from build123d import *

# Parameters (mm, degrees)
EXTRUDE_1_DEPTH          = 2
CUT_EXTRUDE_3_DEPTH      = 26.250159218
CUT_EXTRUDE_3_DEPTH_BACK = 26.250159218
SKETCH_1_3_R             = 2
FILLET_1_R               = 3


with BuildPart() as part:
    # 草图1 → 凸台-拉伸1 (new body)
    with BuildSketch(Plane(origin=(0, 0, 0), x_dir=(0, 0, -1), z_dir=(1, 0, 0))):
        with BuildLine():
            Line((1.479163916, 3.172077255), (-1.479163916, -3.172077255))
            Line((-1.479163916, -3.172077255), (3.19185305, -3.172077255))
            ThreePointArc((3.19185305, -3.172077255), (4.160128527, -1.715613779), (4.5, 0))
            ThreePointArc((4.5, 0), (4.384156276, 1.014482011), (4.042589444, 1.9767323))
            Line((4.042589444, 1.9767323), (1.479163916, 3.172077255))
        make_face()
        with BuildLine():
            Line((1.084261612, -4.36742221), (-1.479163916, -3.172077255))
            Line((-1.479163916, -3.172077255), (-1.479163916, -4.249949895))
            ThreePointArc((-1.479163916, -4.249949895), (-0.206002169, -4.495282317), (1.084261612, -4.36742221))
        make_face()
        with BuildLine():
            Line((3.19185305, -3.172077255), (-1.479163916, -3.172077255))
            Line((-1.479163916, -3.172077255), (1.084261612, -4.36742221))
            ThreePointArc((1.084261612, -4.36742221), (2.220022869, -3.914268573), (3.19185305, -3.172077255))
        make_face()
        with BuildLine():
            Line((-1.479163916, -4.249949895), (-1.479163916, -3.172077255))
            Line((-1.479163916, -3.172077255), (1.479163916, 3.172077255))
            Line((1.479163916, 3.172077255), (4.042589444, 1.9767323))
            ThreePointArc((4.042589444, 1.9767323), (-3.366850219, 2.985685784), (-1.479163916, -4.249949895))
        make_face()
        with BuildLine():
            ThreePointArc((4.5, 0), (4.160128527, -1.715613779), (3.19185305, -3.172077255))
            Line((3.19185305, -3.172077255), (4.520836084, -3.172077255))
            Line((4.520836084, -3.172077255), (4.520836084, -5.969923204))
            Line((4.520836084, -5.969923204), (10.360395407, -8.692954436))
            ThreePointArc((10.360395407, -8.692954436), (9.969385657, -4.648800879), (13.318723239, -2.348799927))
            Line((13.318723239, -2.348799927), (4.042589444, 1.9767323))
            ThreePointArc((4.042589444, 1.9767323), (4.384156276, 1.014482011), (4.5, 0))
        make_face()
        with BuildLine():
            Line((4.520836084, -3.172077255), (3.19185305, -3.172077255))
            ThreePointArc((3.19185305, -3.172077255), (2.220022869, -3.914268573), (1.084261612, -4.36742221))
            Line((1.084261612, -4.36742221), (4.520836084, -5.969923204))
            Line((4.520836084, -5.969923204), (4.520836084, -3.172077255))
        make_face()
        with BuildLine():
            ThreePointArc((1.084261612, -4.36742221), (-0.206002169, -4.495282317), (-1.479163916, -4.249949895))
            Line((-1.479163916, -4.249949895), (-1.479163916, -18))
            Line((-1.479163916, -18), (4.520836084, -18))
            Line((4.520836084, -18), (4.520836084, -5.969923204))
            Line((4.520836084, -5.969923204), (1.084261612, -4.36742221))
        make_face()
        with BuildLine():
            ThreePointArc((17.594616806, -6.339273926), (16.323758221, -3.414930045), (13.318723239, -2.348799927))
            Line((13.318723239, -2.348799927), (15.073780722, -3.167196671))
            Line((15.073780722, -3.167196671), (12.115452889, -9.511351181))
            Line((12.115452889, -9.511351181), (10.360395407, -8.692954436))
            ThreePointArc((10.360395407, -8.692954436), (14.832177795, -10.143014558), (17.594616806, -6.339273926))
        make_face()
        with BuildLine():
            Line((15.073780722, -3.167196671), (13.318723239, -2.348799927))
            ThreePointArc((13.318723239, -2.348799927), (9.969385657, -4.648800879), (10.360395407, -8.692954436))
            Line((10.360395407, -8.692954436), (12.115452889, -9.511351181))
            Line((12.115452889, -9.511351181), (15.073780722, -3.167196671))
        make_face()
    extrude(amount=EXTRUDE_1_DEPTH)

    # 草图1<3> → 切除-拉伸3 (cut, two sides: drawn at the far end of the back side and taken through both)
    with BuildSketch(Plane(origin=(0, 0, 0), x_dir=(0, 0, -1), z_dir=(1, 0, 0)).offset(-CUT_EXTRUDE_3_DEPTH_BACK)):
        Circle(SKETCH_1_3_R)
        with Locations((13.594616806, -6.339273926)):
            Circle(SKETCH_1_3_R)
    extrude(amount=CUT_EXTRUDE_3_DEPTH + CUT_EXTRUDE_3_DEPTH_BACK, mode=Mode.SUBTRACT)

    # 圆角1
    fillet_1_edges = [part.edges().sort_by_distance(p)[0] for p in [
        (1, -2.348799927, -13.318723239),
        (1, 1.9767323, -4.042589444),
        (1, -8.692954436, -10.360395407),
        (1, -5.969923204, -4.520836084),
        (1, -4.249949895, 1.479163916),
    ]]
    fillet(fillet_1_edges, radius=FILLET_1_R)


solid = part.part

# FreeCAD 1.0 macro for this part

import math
import FreeCAD as App
import Part
import Sketcher
Q = App.Units.Quantity


def edges_at(feature, points):
    """Names of the edges that pass closest to the given points."""
    edges = feature.Shape.Edges
    near = lambda p: min(range(len(edges)), key=lambda i: edges[i].distToShape(Part.Vertex(*p))[0])
    return sorted({f"Edge{near(p) + 1}" for p in points})

doc = App.newDocument("Part")
body = doc.addObject("PartDesign::Body", "Body")

sketch1 = body.newObject("Sketcher::SketchObject", "Sketch")
sketch1.AttachmentSupport = (doc.getObject("YZ_Plane"), [""])
sketch1.MapMode = "FlatFace"
sketch1.addGeometry([
    Part.LineSegment(App.Vector(-5.969923, -4.520836, 0), App.Vector(-8.692954, -10.360395, 0)),
    Part.ArcOfCircle(Part.Circle(App.Vector(-6.339274, -13.594617, 0), App.Vector(0, 0, 1), 4), math.radians(126.044976), math.radians(270)),
    Part.ArcOfCircle(Part.Circle(App.Vector(-6.339274, -13.594617, 0), App.Vector(0, 0, 1), 4), math.radians(-90), math.radians(3.955024)),
    Part.LineSegment(App.Vector(-2.3488, -13.318723, 0), App.Vector(1.976732, -4.042589, 0)),
    Part.ArcOfCircle(Part.Circle(App.Vector(0, 0, 0), App.Vector(0, 0, 1), 4.5), math.radians(-63.942441), math.radians(160.809923)),
    Part.LineSegment(App.Vector(-4.24995, 1.479164, 0), App.Vector(-18, 1.479164, 0)),
    Part.LineSegment(App.Vector(-18, 1.479164, 0), App.Vector(-18, -4.520836, 0)),
    Part.LineSegment(App.Vector(-18, -4.520836, 0), App.Vector(-5.969923, -4.520836, 0)),
], False)
sketch1.addConstraint([
    Sketcher.Constraint("Coincident", 0, 2, 1, 1),
    Sketcher.Constraint("Tangent", 1, 2, 2, 1),
    Sketcher.Constraint("Coincident", 2, 2, 3, 1),
    Sketcher.Constraint("Coincident", 3, 2, 4, 1),
    Sketcher.Constraint("Coincident", 4, 2, 5, 1),
    Sketcher.Constraint("Coincident", 5, 2, 6, 1),
    Sketcher.Constraint("Coincident", 6, 2, 7, 1),
    Sketcher.Constraint("Coincident", 7, 2, 0, 1),
    Sketcher.Constraint("Horizontal", 5),
    Sketcher.Constraint("Vertical", 6),
    Sketcher.Constraint("Horizontal", 7),
    Sketcher.Constraint("Coincident", 4, 3, -1, 1),
    Sketcher.Constraint("Equal", 1, 2),
    Sketcher.Constraint("Parallel", 0, 3),
    Sketcher.Constraint("Vertical", 2, 3, 1, 2),
    Sketcher.Constraint("Radius", 1, 4.0),
    Sketcher.Constraint("Radius", 4, 4.5),
    Sketcher.Constraint("DistanceY", 6, 2, 6, 1, 6.0),
    Sketcher.Constraint("Angle", 0, Q("-115 deg")),
    Sketcher.Constraint("DistanceX", 5, 2, -1, 1, 18.0),
    Sketcher.Constraint("DistanceX", 5, 2, 5, 1, 13.75005),
    Sketcher.Constraint("DistanceX", 2, 2, -1, 1, 2.3488),
    Sketcher.Constraint("Distance", 0, 6.443241),
    Sketcher.Constraint("Distance", 3, 10.235081),
    Sketcher.Constraint("DistanceX", 7, 1, 7, 2, 12.030077),
])
pad1 = body.newObject("PartDesign::Pad", "Pad")
pad1.Profile = sketch1
pad1.Length = 2

sketch2 = body.newObject("Sketcher::SketchObject", "Sketch001")
sketch2.AttachmentSupport = (doc.getObject("YZ_Plane"), [""])
sketch2.MapMode = "FlatFace"
sketch2.addGeometry([
    Part.Circle(App.Vector(0, 0, 0), App.Vector(0, 0, 1), 2),
    Part.Circle(App.Vector(-6.339274, -13.594617, 0), App.Vector(0, 0, 1), 2),
], False)
sketch2.addConstraint([
    Sketcher.Constraint("Coincident", 0, 3, -1, 1),
    Sketcher.Constraint("Equal", 0, 1),
    Sketcher.Constraint("Diameter", 0, 4.0),
    Sketcher.Constraint("DistanceX", 1, 3, -1, 1, 6.339274),
    Sketcher.Constraint("DistanceY", 1, 3, -1, 1, 13.594617),
])
pocket1 = body.newObject("PartDesign::Pocket", "Pocket")
pocket1.Profile = sketch2
pocket1.Type = "ThroughAll"
pocket1.Midplane = True
doc.recompute()

fillet = body.newObject("PartDesign::Fillet", "Fillet")
fillet.Base = (pocket1, edges_at(pocket1, [
    (1, -2.349, -13.319),
    (1, 1.977, -4.043),
    (1, -8.693, -10.36),
    (1, -5.97, -4.521),
    (1, -4.25, 1.479),
]))
fillet.Radius = 3

doc.recompute()
